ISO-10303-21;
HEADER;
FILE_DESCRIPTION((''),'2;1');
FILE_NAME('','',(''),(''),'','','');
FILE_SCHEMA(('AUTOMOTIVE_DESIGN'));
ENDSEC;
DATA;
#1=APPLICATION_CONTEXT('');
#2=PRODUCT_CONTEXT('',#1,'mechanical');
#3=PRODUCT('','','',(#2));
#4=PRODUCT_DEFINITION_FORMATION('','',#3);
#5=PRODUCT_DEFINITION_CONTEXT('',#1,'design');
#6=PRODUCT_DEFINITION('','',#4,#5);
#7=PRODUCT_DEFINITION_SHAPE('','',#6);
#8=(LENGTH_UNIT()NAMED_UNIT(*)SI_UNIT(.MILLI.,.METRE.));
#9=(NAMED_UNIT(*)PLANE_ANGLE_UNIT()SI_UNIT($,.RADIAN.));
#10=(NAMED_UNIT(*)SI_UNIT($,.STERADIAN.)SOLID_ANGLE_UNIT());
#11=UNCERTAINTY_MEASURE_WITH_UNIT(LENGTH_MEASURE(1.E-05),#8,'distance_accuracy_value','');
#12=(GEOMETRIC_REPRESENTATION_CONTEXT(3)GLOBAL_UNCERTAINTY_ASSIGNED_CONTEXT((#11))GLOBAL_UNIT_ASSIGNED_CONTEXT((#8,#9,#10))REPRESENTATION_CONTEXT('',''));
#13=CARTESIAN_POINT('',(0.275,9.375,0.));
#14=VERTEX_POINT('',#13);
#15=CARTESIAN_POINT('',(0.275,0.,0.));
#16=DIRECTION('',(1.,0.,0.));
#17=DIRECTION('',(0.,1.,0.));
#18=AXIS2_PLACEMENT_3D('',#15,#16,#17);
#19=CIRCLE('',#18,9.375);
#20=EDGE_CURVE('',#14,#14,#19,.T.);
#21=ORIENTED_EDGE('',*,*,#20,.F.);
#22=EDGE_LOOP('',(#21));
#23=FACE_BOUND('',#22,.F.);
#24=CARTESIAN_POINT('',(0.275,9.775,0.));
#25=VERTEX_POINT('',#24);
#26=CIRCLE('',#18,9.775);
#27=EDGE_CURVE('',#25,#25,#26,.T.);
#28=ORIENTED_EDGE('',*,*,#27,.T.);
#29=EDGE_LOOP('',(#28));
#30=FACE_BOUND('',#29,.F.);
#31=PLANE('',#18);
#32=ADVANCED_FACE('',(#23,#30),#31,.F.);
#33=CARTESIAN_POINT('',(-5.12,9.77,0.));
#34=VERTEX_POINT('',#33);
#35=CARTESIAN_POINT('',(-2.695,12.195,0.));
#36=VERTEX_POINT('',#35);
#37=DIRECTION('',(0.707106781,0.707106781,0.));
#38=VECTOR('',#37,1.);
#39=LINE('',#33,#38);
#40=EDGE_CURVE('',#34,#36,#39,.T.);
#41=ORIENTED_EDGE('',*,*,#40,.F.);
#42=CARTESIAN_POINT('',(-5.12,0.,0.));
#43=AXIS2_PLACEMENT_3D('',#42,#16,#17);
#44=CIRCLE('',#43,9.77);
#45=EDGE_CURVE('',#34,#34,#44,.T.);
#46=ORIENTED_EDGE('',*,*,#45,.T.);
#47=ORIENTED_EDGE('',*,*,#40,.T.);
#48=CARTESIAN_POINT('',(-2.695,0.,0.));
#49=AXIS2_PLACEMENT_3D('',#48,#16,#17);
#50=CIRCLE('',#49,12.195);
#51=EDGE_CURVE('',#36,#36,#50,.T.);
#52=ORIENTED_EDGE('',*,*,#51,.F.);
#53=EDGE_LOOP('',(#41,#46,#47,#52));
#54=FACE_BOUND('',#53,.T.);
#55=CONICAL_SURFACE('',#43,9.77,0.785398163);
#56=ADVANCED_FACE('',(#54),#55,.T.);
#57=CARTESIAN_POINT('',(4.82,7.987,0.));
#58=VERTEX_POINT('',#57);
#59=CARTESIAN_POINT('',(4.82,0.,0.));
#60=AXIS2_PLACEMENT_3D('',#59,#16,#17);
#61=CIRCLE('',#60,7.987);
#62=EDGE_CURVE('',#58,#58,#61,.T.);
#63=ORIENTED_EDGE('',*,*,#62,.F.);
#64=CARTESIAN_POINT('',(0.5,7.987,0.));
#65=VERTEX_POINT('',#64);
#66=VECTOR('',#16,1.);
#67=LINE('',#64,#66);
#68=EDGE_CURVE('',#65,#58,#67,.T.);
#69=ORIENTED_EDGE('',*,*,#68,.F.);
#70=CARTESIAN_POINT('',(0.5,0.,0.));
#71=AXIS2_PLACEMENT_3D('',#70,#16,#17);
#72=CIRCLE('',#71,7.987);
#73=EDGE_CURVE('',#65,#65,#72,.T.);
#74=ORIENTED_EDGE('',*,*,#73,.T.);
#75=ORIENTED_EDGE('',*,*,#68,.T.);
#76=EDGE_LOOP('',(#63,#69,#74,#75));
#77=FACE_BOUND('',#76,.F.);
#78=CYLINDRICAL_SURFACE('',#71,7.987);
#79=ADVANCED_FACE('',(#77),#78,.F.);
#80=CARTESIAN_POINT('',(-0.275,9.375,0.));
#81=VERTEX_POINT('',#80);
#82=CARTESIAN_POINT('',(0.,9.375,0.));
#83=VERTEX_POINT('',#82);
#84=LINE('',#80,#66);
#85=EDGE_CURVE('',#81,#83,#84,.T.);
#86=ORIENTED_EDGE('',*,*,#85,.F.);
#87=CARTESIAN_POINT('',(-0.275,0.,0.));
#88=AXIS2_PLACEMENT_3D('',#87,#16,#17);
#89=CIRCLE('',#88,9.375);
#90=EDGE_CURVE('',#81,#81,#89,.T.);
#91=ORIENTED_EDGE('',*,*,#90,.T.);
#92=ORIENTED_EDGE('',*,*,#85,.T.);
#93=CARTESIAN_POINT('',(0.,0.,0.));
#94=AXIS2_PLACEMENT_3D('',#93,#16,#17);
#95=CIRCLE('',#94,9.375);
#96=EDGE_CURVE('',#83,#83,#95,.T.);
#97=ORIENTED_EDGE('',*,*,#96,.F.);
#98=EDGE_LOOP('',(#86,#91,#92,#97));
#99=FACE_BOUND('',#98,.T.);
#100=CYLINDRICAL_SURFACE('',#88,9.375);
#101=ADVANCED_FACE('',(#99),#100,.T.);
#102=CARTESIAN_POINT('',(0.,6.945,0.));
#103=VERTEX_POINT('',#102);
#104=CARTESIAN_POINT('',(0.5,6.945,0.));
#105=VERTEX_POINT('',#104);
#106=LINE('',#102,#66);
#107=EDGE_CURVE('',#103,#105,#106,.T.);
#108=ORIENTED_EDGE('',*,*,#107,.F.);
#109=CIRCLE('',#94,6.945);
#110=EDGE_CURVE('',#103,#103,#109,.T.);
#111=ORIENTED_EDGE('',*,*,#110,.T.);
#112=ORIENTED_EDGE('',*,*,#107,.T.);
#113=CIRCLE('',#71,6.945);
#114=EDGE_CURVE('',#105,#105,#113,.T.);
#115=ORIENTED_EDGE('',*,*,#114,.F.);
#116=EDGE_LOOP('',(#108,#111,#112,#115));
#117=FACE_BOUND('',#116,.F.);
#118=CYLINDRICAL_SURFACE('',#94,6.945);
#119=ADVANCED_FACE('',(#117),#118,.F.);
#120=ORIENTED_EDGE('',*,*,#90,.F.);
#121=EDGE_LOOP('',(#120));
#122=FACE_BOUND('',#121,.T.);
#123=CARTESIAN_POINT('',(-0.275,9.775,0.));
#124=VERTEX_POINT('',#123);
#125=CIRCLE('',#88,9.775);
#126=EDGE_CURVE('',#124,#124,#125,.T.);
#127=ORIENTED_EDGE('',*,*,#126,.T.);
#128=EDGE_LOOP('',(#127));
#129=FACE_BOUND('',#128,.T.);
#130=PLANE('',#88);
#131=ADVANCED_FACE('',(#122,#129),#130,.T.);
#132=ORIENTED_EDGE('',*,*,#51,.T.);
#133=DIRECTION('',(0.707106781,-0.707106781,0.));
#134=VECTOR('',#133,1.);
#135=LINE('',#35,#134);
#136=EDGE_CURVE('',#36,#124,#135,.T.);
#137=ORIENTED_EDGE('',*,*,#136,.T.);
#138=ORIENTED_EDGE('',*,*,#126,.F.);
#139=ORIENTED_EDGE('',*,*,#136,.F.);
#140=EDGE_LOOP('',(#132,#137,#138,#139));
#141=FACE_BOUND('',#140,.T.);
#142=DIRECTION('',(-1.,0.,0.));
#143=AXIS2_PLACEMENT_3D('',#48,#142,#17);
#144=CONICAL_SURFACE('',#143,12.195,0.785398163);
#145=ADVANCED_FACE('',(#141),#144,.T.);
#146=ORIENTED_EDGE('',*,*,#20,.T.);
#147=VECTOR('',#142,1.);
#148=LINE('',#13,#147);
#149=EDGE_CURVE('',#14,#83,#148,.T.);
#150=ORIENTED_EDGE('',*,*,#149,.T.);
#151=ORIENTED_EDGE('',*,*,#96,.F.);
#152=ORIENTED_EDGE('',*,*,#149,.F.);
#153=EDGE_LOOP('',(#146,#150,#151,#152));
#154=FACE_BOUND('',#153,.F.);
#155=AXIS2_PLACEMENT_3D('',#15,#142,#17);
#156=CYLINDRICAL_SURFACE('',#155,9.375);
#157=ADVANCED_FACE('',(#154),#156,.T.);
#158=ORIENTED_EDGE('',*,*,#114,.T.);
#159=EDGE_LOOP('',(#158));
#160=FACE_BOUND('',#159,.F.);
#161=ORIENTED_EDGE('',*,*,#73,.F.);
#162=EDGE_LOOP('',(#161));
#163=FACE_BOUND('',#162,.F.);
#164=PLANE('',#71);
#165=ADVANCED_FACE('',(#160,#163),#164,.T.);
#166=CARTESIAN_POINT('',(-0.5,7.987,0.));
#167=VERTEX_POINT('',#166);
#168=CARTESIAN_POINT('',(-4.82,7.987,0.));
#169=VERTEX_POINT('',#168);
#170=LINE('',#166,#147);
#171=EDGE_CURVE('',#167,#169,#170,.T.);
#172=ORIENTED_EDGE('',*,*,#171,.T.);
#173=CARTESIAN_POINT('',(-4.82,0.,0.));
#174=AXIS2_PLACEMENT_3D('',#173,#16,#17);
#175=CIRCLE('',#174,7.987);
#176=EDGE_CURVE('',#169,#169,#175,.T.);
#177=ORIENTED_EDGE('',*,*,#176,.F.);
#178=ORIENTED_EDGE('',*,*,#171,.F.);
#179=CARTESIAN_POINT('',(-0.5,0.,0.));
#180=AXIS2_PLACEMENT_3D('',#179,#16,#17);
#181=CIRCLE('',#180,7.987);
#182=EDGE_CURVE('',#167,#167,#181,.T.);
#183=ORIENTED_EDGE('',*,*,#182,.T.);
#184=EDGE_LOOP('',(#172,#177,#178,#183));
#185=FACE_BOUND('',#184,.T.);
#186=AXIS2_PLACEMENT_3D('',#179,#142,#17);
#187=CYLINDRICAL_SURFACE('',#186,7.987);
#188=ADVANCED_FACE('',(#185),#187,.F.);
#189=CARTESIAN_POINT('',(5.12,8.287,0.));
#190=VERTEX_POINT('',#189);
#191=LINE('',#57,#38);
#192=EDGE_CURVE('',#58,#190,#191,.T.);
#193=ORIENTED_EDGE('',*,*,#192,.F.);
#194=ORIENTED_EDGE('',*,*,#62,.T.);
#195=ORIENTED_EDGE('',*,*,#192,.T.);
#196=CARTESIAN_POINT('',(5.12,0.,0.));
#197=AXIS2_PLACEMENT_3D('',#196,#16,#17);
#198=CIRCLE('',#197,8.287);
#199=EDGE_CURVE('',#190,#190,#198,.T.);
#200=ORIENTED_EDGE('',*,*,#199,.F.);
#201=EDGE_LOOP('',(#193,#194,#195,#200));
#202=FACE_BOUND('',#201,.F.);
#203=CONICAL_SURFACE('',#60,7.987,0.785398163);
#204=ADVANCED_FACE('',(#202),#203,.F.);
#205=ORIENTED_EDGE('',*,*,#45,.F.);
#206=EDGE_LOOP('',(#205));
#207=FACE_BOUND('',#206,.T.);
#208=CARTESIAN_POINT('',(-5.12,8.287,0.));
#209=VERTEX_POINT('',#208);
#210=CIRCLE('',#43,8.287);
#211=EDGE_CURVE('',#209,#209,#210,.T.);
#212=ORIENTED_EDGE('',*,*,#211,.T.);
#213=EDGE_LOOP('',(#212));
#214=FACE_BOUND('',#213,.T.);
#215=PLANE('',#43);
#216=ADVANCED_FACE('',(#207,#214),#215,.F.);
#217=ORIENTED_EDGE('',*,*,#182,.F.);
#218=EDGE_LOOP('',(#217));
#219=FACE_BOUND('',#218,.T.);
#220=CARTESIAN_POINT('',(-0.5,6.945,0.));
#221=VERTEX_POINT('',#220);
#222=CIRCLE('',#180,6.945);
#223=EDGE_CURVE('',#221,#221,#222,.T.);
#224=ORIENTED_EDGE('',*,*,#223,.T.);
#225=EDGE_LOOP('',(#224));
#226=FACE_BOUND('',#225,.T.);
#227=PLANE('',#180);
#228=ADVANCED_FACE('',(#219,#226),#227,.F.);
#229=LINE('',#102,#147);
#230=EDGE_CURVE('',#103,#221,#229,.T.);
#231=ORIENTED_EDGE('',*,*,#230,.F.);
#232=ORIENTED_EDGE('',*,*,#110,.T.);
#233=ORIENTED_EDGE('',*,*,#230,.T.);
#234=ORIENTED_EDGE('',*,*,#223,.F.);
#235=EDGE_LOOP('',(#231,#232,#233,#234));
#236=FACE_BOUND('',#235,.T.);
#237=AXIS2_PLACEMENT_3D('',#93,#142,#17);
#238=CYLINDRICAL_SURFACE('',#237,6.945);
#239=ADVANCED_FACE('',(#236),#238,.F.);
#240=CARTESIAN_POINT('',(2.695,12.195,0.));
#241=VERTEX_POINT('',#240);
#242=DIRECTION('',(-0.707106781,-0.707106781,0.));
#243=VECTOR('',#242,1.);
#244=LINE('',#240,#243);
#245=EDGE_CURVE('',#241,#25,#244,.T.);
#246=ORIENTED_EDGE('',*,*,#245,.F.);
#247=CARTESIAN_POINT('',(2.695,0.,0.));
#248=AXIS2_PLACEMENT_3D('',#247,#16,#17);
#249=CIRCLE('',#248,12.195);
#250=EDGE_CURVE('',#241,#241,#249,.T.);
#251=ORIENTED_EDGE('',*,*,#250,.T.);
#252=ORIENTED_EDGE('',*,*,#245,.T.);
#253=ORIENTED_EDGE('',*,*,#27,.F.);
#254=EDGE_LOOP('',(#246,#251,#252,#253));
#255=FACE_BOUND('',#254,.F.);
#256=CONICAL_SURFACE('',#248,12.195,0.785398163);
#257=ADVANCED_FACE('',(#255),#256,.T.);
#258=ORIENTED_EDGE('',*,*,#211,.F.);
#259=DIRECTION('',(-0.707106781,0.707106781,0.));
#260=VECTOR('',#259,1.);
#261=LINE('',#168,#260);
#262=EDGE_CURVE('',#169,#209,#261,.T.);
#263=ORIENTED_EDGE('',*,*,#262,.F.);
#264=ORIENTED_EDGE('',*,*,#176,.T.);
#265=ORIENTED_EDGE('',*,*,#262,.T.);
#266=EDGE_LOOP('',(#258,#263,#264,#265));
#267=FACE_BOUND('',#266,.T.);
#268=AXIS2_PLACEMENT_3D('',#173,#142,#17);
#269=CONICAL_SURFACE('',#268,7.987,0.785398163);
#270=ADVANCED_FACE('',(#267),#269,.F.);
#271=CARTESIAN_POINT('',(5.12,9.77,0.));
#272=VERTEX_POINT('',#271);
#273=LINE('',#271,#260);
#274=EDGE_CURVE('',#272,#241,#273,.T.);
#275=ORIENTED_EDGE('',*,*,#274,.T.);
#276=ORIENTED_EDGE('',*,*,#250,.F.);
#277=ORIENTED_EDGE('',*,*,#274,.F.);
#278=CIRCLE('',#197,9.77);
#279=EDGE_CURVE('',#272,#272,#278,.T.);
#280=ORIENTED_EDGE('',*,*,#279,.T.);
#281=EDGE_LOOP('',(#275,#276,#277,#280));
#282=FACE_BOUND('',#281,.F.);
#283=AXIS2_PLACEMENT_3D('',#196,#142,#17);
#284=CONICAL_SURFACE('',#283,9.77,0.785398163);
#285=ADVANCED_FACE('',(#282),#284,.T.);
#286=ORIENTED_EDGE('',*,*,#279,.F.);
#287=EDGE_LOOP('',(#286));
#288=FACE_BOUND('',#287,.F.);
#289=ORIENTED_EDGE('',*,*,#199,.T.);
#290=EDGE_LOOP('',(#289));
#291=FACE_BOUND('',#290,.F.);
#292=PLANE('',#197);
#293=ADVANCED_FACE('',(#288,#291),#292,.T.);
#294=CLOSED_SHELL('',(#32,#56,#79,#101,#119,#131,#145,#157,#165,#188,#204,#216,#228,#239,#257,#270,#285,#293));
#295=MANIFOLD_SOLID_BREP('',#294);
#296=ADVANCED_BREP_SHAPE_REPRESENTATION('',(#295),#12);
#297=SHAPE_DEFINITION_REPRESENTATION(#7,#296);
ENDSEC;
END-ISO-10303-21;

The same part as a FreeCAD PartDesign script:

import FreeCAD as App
import Part
import Sketcher

V = App.Vector
Q = App.Units.Quantity


def add_polygon(sketch, points):
    """Adds a closed chain of lines whose ends are joined by coincident constraints."""
    first, n = sketch.GeometryCount, len(points)
    for a, b in zip(points, points[1:] + points[:1]):
        sketch.addGeometry(Part.LineSegment(App.Vector(*a, 0), App.Vector(*b, 0)), False)
    for i in range(n):
        sketch.addConstraint(Sketcher.Constraint("Coincident", first + i, 2, first + (i + 1) % n, 1))

doc = App.newDocument("Part")
params = doc.addObject("Spreadsheet::Sheet", "Params")
for row, (alias, value) in enumerate([
    ("sketch1_height", "0.4 mm"),
    ("revolution_angle", "360 deg"),
], start=1):
    params.set(f"A{row}", alias)
    params.set(f"B{row}", "=" + value)
    params.setAlias(f"B{row}", alias)

body = doc.addObject("PartDesign::Body", "Body")

sketch1 = doc.addObject("Sketcher::SketchObject", "Sketch")
body.addObject(sketch1)
sketch1.AttachmentSupport = (doc.XY_Plane, [""])
sketch1.MapMode = "FlatFace"
add_polygon(sketch1, [(-0.5, 6.95), (0.5, 6.95), (0.5, 7.99), (4.82, 7.99), (5.12, 8.29), (5.12, 9.77), (2.69, 12.2), (0.28, 9.78), (0.28, 9.38), (-0.28, 9.38), (-0.28, 9.78), (-2.69, 12.2), (-5.12, 9.77), (-5.12, 8.29), (-4.82, 7.99), (-0.5, 7.99)])
sketch1.addConstraint(Sketcher.Constraint("Horizontal", 0))
sketch1.addConstraint(Sketcher.Constraint("Vertical", 1))
sketch1.addConstraint(Sketcher.Constraint("Horizontal", 2))
sketch1.addConstraint(Sketcher.Constraint("Vertical", 4))
sketch1.addConstraint(Sketcher.Constraint("Vertical", 7))
sketch1.addConstraint(Sketcher.Constraint("Horizontal", 8))
sketch1.addConstraint(Sketcher.Constraint("Vertical", 9))
sketch1.addConstraint(Sketcher.Constraint("Vertical", 12))
sketch1.addConstraint(Sketcher.Constraint("Horizontal", 14))
sketch1.addConstraint(Sketcher.Constraint("Vertical", 15))
sketch1.addConstraint(Sketcher.Constraint("Symmetric", 6, 2, 9, 2, -2))
sketch1.addConstraint(Sketcher.Constraint("Symmetric", 5, 2, 10, 2, -2))
sketch1.addConstraint(Sketcher.Constraint("Symmetric", 4, 2, 11, 2, -2))
sketch1.addConstraint(Sketcher.Constraint("Symmetric", 2, 2, 13, 2, -2))
sketch1.addConstraint(Sketcher.Constraint("Perpendicular", 3, 5))
sketch1.addConstraint(Sketcher.Constraint("Perpendicular", 5, 6))
sketch1.addConstraint(Sketcher.Constraint("Perpendicular", 6, 10))
sketch1.addConstraint(Sketcher.Constraint("Perpendicular", 11, 13))
sketch1.addConstraint(Sketcher.Constraint("Equal", 2, 14))
sketch1.addConstraint(Sketcher.Constraint("DistanceX", -1, 1, 0, 2, Q("0.5 mm")))
sketch1.addConstraint(Sketcher.Constraint("DistanceX", 2, 2, 3, 2, Q("0.3 mm")))
sketch1.addConstraint(Sketcher.Constraint("DistanceX", -1, 1, 3, 2, Q("5.12 mm")))
sketch1.addConstraint(Sketcher.Constraint("DistanceY", 7, 2, 7, 1, Q("0.4 mm")))
sketch1.addConstraint(Sketcher.Constraint("DistanceX", -1, 1, 5, 2, Q("2.695 mm")))
sketch1.addConstraint(Sketcher.Constraint("DistanceX", -1, 1, 6, 2, Q("0.275 mm")))
sketch1.addConstraint(Sketcher.Constraint("DistanceY", 1, 1, 1, 2, Q("1.042 mm")))
sketch1.addConstraint(Sketcher.Constraint("DistanceY", 4, 1, 4, 2, Q("1.483 mm")))
sketch1.addConstraint(Sketcher.Constraint("DistanceY", -1, 1, 4, 2, Q("9.77 mm")))
sketch1.setExpression("Constraints[38]", "Params.sketch1_height")
revolution = doc.addObject("PartDesign::Revolution", "Revolution")
body.addObject(revolution)
revolution.Profile = sketch1
revolution.ReferenceAxis = (sketch1, ["H_Axis"])
revolution.setExpression("Angle", "Params.revolution_angle")

doc.recompute()
